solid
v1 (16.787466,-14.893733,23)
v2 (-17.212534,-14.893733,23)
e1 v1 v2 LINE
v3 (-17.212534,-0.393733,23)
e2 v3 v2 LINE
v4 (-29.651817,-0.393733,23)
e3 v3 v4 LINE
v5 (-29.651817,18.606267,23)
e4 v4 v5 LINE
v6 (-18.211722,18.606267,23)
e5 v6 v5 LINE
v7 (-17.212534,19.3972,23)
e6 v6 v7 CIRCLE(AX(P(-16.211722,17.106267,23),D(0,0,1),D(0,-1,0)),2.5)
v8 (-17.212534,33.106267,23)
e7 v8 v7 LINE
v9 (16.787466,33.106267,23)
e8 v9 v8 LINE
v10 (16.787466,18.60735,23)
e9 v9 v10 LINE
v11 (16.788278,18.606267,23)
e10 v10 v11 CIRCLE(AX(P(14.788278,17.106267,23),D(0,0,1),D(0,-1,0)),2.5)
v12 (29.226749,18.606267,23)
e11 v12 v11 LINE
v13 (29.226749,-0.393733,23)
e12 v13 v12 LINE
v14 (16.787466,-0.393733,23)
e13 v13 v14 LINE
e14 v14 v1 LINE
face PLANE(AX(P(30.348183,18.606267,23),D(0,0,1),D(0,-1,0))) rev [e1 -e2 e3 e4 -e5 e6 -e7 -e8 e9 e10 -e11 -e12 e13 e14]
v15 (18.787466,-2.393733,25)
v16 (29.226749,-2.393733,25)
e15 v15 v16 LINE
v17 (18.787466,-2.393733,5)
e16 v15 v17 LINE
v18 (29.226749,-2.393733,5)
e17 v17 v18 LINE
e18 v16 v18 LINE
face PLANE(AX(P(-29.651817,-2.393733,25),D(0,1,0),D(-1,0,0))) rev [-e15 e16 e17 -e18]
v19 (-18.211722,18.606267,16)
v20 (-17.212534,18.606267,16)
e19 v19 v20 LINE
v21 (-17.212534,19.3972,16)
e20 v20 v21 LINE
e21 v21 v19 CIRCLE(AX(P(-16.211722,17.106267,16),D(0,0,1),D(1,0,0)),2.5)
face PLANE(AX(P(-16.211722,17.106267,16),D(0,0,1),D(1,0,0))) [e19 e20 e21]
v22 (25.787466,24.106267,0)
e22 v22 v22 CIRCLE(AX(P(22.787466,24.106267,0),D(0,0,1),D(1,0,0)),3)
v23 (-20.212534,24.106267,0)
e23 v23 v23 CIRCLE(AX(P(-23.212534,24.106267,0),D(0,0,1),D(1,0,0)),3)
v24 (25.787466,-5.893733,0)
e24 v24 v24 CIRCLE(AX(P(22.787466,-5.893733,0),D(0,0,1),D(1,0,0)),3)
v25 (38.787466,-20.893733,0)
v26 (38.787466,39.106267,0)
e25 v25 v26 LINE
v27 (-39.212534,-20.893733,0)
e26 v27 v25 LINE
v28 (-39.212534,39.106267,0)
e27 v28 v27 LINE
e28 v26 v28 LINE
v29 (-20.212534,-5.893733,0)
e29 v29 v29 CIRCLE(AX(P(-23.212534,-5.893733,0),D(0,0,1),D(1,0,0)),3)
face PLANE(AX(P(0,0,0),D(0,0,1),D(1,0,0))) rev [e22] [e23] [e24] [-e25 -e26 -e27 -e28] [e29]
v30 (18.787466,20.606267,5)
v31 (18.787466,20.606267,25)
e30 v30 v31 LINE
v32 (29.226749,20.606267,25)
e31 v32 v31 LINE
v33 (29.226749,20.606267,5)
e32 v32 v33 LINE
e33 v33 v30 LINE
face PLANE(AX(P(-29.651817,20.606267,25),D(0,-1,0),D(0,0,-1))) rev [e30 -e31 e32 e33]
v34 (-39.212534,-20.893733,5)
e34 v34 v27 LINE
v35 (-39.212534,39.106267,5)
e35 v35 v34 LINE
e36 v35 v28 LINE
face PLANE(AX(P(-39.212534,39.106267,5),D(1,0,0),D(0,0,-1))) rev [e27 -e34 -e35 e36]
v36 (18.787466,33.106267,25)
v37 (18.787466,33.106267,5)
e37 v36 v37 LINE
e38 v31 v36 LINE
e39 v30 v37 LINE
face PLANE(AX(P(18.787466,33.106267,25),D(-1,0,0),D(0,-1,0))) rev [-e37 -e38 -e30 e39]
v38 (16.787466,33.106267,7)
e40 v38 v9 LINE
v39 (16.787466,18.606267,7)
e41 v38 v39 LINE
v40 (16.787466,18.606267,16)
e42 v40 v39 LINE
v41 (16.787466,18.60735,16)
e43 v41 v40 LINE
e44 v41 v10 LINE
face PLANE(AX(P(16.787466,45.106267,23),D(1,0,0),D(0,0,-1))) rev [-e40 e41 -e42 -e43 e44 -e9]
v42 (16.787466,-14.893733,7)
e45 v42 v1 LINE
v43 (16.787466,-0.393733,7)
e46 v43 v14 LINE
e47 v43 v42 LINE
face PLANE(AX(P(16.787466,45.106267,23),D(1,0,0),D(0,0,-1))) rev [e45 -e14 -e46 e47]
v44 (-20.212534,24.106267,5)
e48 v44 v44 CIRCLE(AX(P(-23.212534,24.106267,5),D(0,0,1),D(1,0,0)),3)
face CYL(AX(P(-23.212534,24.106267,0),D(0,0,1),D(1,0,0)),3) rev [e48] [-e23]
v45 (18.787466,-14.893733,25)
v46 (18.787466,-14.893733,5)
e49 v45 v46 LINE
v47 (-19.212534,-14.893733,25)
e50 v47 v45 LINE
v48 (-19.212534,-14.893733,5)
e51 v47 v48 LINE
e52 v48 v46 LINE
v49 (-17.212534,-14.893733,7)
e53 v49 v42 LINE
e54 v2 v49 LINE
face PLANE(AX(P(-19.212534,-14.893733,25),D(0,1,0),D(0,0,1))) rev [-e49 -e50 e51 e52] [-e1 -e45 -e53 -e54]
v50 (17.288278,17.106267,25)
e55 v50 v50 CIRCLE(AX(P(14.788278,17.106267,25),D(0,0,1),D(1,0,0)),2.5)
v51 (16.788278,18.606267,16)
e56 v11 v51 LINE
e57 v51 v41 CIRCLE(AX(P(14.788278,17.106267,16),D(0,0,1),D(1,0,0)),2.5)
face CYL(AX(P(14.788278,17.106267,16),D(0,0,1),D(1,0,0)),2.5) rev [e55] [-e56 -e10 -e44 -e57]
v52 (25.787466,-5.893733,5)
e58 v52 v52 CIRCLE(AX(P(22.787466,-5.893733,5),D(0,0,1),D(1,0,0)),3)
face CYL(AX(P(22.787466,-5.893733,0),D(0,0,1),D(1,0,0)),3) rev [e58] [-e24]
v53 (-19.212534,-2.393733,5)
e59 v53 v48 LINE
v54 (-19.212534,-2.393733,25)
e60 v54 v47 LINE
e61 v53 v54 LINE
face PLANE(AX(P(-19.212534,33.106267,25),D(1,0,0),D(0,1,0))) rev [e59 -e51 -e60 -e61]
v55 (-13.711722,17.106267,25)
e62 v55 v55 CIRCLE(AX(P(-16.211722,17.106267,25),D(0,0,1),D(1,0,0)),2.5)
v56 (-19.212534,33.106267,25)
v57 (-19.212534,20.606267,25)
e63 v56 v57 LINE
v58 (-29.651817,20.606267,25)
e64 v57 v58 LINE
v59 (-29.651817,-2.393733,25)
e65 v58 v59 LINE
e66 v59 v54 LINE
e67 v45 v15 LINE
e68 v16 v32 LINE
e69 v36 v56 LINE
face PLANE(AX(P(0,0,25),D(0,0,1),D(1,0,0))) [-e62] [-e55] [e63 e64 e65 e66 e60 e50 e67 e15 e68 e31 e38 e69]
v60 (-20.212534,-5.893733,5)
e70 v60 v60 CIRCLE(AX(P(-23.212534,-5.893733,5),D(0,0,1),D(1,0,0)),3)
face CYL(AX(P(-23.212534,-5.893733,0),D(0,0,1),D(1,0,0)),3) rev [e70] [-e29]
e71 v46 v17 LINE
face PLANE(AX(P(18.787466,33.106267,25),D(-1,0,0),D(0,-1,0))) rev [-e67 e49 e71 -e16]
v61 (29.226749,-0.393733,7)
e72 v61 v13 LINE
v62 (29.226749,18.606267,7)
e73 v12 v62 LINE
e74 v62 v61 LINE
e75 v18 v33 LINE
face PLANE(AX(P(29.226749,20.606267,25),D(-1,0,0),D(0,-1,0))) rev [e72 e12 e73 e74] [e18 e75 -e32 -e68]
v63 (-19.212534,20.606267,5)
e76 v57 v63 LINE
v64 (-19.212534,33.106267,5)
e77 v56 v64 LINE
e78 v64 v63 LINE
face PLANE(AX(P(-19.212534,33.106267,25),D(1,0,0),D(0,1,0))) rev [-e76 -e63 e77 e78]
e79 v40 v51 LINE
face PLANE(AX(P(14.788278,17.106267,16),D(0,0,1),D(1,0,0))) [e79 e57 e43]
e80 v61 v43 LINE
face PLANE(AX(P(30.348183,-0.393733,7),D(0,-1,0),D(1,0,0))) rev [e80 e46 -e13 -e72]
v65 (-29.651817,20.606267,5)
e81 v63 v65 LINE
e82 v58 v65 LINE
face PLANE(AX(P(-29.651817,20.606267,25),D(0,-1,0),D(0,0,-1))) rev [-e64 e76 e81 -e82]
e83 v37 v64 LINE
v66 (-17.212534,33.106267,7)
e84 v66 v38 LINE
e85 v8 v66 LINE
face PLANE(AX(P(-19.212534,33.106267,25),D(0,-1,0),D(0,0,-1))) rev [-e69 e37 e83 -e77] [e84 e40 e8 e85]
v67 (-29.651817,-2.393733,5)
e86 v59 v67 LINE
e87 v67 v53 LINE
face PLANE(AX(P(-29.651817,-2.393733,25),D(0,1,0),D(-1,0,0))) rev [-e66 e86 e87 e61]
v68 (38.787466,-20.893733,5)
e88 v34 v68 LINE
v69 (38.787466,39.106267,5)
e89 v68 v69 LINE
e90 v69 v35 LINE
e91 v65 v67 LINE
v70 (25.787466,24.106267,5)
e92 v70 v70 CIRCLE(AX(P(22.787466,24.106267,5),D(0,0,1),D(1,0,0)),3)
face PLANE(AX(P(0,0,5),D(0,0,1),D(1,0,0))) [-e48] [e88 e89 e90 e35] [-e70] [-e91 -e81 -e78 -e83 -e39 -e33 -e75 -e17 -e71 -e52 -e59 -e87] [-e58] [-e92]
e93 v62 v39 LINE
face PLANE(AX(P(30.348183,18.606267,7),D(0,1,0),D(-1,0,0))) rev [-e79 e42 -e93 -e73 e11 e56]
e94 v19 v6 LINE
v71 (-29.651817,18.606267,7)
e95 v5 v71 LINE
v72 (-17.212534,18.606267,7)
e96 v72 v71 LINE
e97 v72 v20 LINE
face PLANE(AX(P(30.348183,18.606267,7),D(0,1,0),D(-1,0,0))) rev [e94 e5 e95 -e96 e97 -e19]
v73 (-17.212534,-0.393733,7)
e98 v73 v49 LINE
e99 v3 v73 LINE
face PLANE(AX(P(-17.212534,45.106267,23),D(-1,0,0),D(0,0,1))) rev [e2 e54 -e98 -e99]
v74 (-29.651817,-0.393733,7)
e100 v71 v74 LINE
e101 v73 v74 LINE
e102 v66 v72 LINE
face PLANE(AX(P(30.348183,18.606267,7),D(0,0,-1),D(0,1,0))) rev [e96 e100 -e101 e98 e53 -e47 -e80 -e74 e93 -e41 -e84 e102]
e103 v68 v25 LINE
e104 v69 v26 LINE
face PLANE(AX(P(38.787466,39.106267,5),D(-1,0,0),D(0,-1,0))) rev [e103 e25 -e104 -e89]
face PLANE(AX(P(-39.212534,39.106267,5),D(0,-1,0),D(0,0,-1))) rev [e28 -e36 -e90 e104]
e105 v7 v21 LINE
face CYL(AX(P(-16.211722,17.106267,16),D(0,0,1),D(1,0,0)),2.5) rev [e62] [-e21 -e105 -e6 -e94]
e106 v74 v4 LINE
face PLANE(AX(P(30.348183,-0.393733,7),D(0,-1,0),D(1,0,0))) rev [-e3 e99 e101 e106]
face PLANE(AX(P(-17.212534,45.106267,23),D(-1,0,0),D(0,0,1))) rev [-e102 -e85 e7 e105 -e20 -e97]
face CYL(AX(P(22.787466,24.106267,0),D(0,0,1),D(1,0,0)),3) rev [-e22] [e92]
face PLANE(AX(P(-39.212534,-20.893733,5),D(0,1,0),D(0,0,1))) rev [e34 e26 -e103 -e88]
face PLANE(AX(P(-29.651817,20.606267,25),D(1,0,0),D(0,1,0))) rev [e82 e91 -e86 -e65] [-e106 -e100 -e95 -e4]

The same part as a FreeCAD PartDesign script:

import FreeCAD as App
import Part
import Sketcher
from FreeCAD import Vector
Q = App.Units.Quantity

doc = App.newDocument("Part")
params = doc.addObject("Spreadsheet::Sheet", "Params")
for row, (alias, value) in enumerate([
    ("sketch1_width", "78 mm"),
    ("sketch1_height", "60 mm"),
    ("pad1_length", "5 mm"),
    ("sketch2_diameter", "6 mm"),
    ("sketch3_width", "38 mm"),
    ("sketch3_height", "48 mm"),
    ("pad2_length", "20 mm"),
    ("sketch4_height", "23 mm"),
    ("pad3_length", "20 mm"),
    ("sketch5_width", "19 mm"),
    ("sketch5_height", "16 mm"),
    ("pocket2_length", "60 mm"),
    ("sketch6_width", "34 mm"),
    ("sketch6_height", "16 mm"),
    ("pocket3_length", "60 mm"),
    ("sketch7_diameter", "5 mm"),
    ("pocket4_length", "9 mm"),
], start=1):
    params.set(f"A{row}", alias)
    params.set(f"B{row}", "=" + value)
    params.setAlias(f"B{row}", alias)

body = doc.addObject("PartDesign::Body", "Body")

# Sketch on XY plane
sketch1 = body.newObject("Sketcher::SketchObject", "Sketch")
sketch1.AttachmentSupport = (doc.getObject("XY_Plane"), [""])
sketch1.MapMode = "FlatFace"
sketch1.addGeometry(Part.LineSegment(Vector(-39, 39, 0), Vector(-39, -21, 0)), False)
sketch1.addGeometry(Part.LineSegment(Vector(-39, -21, 0), Vector(39, -21, 0)), False)
sketch1.addGeometry(Part.LineSegment(Vector(39, -21, 0), Vector(39, 39, 0)), False)
sketch1.addGeometry(Part.LineSegment(Vector(39, 39, 0), Vector(-39, 39, 0)), False)
sketch1.addConstraint(Sketcher.Constraint("Coincident", 0, 2, 1, 1))
sketch1.addConstraint(Sketcher.Constraint("Coincident", 1, 2, 2, 1))
sketch1.addConstraint(Sketcher.Constraint("Coincident", 2, 2, 3, 1))
sketch1.addConstraint(Sketcher.Constraint("Coincident", 3, 2, 0, 1))
sketch1.addConstraint(Sketcher.Constraint("Vertical", 0))
sketch1.addConstraint(Sketcher.Constraint("Horizontal", 1))
sketch1.addConstraint(Sketcher.Constraint("Vertical", 2))
sketch1.addConstraint(Sketcher.Constraint("Horizontal", 3))
sketch1.addConstraint(Sketcher.Constraint("DistanceX", 1, 1, 1, 2, Q("78 mm")))
sketch1.addConstraint(Sketcher.Constraint("DistanceY", 0, 2, 0, 1, Q("60 mm")))
sketch1.addConstraint(Sketcher.Constraint("DistanceX", 0, 2, -1, 1, Q("39.212534 mm")))
sketch1.addConstraint(Sketcher.Constraint("DistanceY", 0, 2, -1, 1, Q("20.893733 mm")))
sketch1.setExpression("Constraints[8]", "Params.sketch1_width")
sketch1.setExpression("Constraints[9]", "Params.sketch1_height")
pad1 = body.newObject("PartDesign::Pad", "Pad")
pad1.Profile = sketch1
pad1.setExpression("Length", "Params.pad1_length")

# Sketch on XY plane
sketch2 = body.newObject("Sketcher::SketchObject", "Sketch001")
sketch2.AttachmentSupport = (doc.getObject("XY_Plane"), [""])
sketch2.MapMode = "FlatFace"
sketch2.AttachmentOffset = App.Placement(Vector(0, 0, 5), App.Rotation())
sketch2.addGeometry(Part.Circle(Vector(-23.2, 24.1, 0), Vector(0, 0, 1), 3), False)
sketch2.addGeometry(Part.Circle(Vector(22.8, 24.1, 0), Vector(0, 0, 1), 3), False)
sketch2.addGeometry(Part.Circle(Vector(22.8, -5.9, 0), Vector(0, 0, 1), 3), False)
sketch2.addGeometry(Part.Circle(Vector(-23.2, -5.9, 0), Vector(0, 0, 1), 3), False)
sketch2.addConstraint(Sketcher.Constraint("Equal", 0, 1))
sketch2.addConstraint(Sketcher.Constraint("Equal", 1, 2))
sketch2.addConstraint(Sketcher.Constraint("Equal", 2, 3))
sketch2.addConstraint(Sketcher.Constraint("Horizontal", 0, 3, 1, 3))
sketch2.addConstraint(Sketcher.Constraint("Horizontal", 2, 3, 3, 3))
sketch2.addConstraint(Sketcher.Constraint("Vertical", 1, 3, 2, 3))
sketch2.addConstraint(Sketcher.Constraint("Vertical", 0, 3, 3, 3))
sketch2.addConstraint(Sketcher.Constraint("Diameter", 0, Q("6 mm")))
sketch2.addConstraint(Sketcher.Constraint("DistanceX", 0, 3, 1, 3, Q("46 mm")))
sketch2.addConstraint(Sketcher.Constraint("DistanceY", 2, 3, 1, 3, Q("30 mm")))
sketch2.addConstraint(Sketcher.Constraint("DistanceX", 0, 3, -1, 1, Q("23.212534 mm")))
sketch2.addConstraint(Sketcher.Constraint("DistanceY", -1, 1, 0, 3, Q("24.106267 mm")))
sketch2.setExpression("Constraints[7]", "Params.sketch2_diameter")
pocket1 = body.newObject("PartDesign::Pocket", "Pocket")
pocket1.Profile = sketch2
pocket1.Type = "ThroughAll"

# Sketch on XY plane
sketch3 = body.newObject("Sketcher::SketchObject", "Sketch002")
sketch3.AttachmentSupport = (doc.getObject("XY_Plane"), [""])
sketch3.MapMode = "FlatFace"
sketch3.AttachmentOffset = App.Placement(Vector(0, 0, 5), App.Rotation())
sketch3.addGeometry(Part.LineSegment(Vector(-19, 33, 0), Vector(-19, -15, 0)), False)
sketch3.addGeometry(Part.LineSegment(Vector(-19, -15, 0), Vector(19, -15, 0)), False)
sketch3.addGeometry(Part.LineSegment(Vector(19, -15, 0), Vector(19, 33, 0)), False)
sketch3.addGeometry(Part.LineSegment(Vector(19, 33, 0), Vector(-19, 33, 0)), False)
sketch3.addConstraint(Sketcher.Constraint("Coincident", 0, 2, 1, 1))
sketch3.addConstraint(Sketcher.Constraint("Coincident", 1, 2, 2, 1))
sketch3.addConstraint(Sketcher.Constraint("Coincident", 2, 2, 3, 1))
sketch3.addConstraint(Sketcher.Constraint("Coincident", 3, 2, 0, 1))
sketch3.addConstraint(Sketcher.Constraint("Vertical", 0))
sketch3.addConstraint(Sketcher.Constraint("Horizontal", 1))
sketch3.addConstraint(Sketcher.Constraint("Vertical", 2))
sketch3.addConstraint(Sketcher.Constraint("Horizontal", 3))
sketch3.addConstraint(Sketcher.Constraint("DistanceX", 1, 1, 1, 2, Q("38 mm")))
sketch3.addConstraint(Sketcher.Constraint("DistanceY", 0, 2, 0, 1, Q("48 mm")))
sketch3.addConstraint(Sketcher.Constraint("DistanceX", 0, 2, -1, 1, Q("19.212534 mm")))
sketch3.addConstraint(Sketcher.Constraint("DistanceY", 0, 2, -1, 1, Q("14.893733 mm")))
sketch3.setExpression("Constraints[8]", "Params.sketch3_width")
sketch3.setExpression("Constraints[9]", "Params.sketch3_height")
pad2 = body.newObject("PartDesign::Pad", "Pad001")
pad2.Profile = sketch3
pad2.setExpression("Length", "Params.pad2_length")

# Sketch on XY plane
sketch4 = body.newObject("Sketcher::SketchObject", "Sketch003")
sketch4.AttachmentSupport = (doc.getObject("XY_Plane"), [""])
sketch4.MapMode = "FlatFace"
sketch4.AttachmentOffset = App.Placement(Vector(0, 0, 5), App.Rotation())
sketch4.addGeometry(Part.LineSegment(Vector(-30, 21, 0), Vector(-30, -2, 0)), False)
sketch4.addGeometry(Part.LineSegment(Vector(-30, -2, 0), Vector(29, -2, 0)), False)
sketch4.addGeometry(Part.LineSegment(Vector(29, -2, 0), Vector(29, 21, 0)), False)
sketch4.addGeometry(Part.LineSegment(Vector(29, 21, 0), Vector(-30, 21, 0)), False)
sketch4.addConstraint(Sketcher.Constraint("Coincident", 0, 2, 1, 1))
sketch4.addConstraint(Sketcher.Constraint("Coincident", 1, 2, 2, 1))
sketch4.addConstraint(Sketcher.Constraint("Coincident", 2, 2, 3, 1))
sketch4.addConstraint(Sketcher.Constraint("Coincident", 3, 2, 0, 1))
sketch4.addConstraint(Sketcher.Constraint("Vertical", 0))
sketch4.addConstraint(Sketcher.Constraint("Horizontal", 1))
sketch4.addConstraint(Sketcher.Constraint("Vertical", 2))
sketch4.addConstraint(Sketcher.Constraint("Horizontal", 3))
sketch4.addConstraint(Sketcher.Constraint("DistanceY", 0, 2, 0, 1, Q("23 mm")))
sketch4.addConstraint(Sketcher.Constraint("DistanceX", 1, 1, 1, 2, Q("58.878566 mm")))
sketch4.addConstraint(Sketcher.Constraint("DistanceX", -1, 1, 1, 2, Q("29.226749 mm")))
sketch4.addConstraint(Sketcher.Constraint("DistanceY", 0, 2, -1, 1, Q("2.393733 mm")))
sketch4.setExpression("Constraints[8]", "Params.sketch4_height")
pad3 = body.newObject("PartDesign::Pad", "Pad002")
pad3.Profile = sketch4
pad3.setExpression("Length", "Params.pad3_length")

# Sketch on YZ plane
sketch5 = body.newObject("Sketcher::SketchObject", "Sketch004")
sketch5.AttachmentSupport = (doc.getObject("YZ_Plane"), [""])
sketch5.MapMode = "FlatFace"
sketch5.AttachmentOffset = App.Placement(Vector(0, 0, -29.651817), App.Rotation())
sketch5.addGeometry(Part.LineSegment(Vector(19, 7, 0), Vector(0, 7, 0)), False)
sketch5.addGeometry(Part.LineSegment(Vector(0, 7, 0), Vector(0, 23, 0)), False)
sketch5.addGeometry(Part.LineSegment(Vector(0, 23, 0), Vector(19, 23, 0)), False)
sketch5.addGeometry(Part.LineSegment(Vector(19, 23, 0), Vector(19, 7, 0)), False)
sketch5.addConstraint(Sketcher.Constraint("Coincident", 0, 2, 1, 1))
sketch5.addConstraint(Sketcher.Constraint("Coincident", 1, 2, 2, 1))
sketch5.addConstraint(Sketcher.Constraint("Coincident", 2, 2, 3, 1))
sketch5.addConstraint(Sketcher.Constraint("Coincident", 3, 2, 0, 1))
sketch5.addConstraint(Sketcher.Constraint("Horizontal", 0))
sketch5.addConstraint(Sketcher.Constraint("Vertical", 1))
sketch5.addConstraint(Sketcher.Constraint("Horizontal", 2))
sketch5.addConstraint(Sketcher.Constraint("Vertical", 3))
sketch5.addConstraint(Sketcher.Constraint("DistanceX", 0, 2, 0, 1, Q("19 mm")))
sketch5.addConstraint(Sketcher.Constraint("DistanceY", 1, 1, 1, 2, Q("16 mm")))
sketch5.addConstraint(Sketcher.Constraint("DistanceY", -1, 1, 0, 2, Q("7 mm")))
sketch5.addConstraint(Sketcher.Constraint("DistanceX", 0, 2, -1, 1, Q("0.393733 mm")))
sketch5.setExpression("Constraints[8]", "Params.sketch5_width")
sketch5.setExpression("Constraints[9]", "Params.sketch5_height")
pocket2 = body.newObject("PartDesign::Pocket", "Pocket001")
pocket2.Profile = sketch5
pocket2.setExpression("Length", "Params.pocket2_length")
pocket2.Reversed = True

# Sketch on XZ plane
sketch6 = body.newObject("Sketcher::SketchObject", "Sketch005")
sketch6.AttachmentSupport = (doc.getObject("XZ_Plane"), [""])
sketch6.MapMode = "FlatFace"
sketch6.AttachmentOffset = App.Placement(Vector(0, 0, 14.893733), App.Rotation())
sketch6.addGeometry(Part.LineSegment(Vector(-17, 23, 0), Vector(-17, 7, 0)), False)
sketch6.addGeometry(Part.LineSegment(Vector(-17, 7, 0), Vector(17, 7, 0)), False)
sketch6.addGeometry(Part.LineSegment(Vector(17, 7, 0), Vector(17, 23, 0)), False)
sketch6.addGeometry(Part.LineSegment(Vector(17, 23, 0), Vector(-17, 23, 0)), False)
sketch6.addConstraint(Sketcher.Constraint("Coincident", 0, 2, 1, 1))
sketch6.addConstraint(Sketcher.Constraint("Coincident", 1, 2, 2, 1))
sketch6.addConstraint(Sketcher.Constraint("Coincident", 2, 2, 3, 1))
sketch6.addConstraint(Sketcher.Constraint("Coincident", 3, 2, 0, 1))
sketch6.addConstraint(Sketcher.Constraint("Vertical", 0))
sketch6.addConstraint(Sketcher.Constraint("Horizontal", 1))
sketch6.addConstraint(Sketcher.Constraint("Vertical", 2))
sketch6.addConstraint(Sketcher.Constraint("Horizontal", 3))
sketch6.addConstraint(Sketcher.Constraint("DistanceX", 1, 1, 1, 2, Q("34 mm")))
sketch6.addConstraint(Sketcher.Constraint("DistanceY", 0, 2, 0, 1, Q("16 mm")))
sketch6.addConstraint(Sketcher.Constraint("DistanceY", -1, 1, 0, 2, Q("7 mm")))
sketch6.addConstraint(Sketcher.Constraint("DistanceX", 0, 2, -1, 1, Q("17.212534 mm")))
sketch6.setExpression("Constraints[8]", "Params.sketch6_width")
sketch6.setExpression("Constraints[9]", "Params.sketch6_height")
pocket3 = body.newObject("PartDesign::Pocket", "Pocket002")
pocket3.Profile = sketch6
pocket3.setExpression("Length", "Params.pocket3_length")

# Sketch on XY plane
sketch7 = body.newObject("Sketcher::SketchObject", "Sketch006")
sketch7.AttachmentSupport = (doc.getObject("XY_Plane"), [""])
sketch7.MapMode = "FlatFace"
sketch7.AttachmentOffset = App.Placement(Vector(0, 0, 25), App.Rotation())
sketch7.addGeometry(Part.Circle(Vector(-16.2, 17.1, 0), Vector(0, 0, 1), 2.5), False)
sketch7.addGeometry(Part.Circle(Vector(14.8, 17.1, 0), Vector(0, 0, 1), 2.5), False)
sketch7.addConstraint(Sketcher.Constraint("Equal", 0, 1))
sketch7.addConstraint(Sketcher.Constraint("Horizontal", 0, 3, 1, 3))
sketch7.addConstraint(Sketcher.Constraint("Diameter", 0, Q("5 mm")))
sketch7.addConstraint(Sketcher.Constraint("DistanceX", 0, 3, 1, 3, Q("31 mm")))
sketch7.addConstraint(Sketcher.Constraint("DistanceX", 0, 3, -1, 1, Q("16.211722 mm")))
sketch7.addConstraint(Sketcher.Constraint("DistanceY", -1, 1, 0, 3, Q("17.106267 mm")))
sketch7.setExpression("Constraints[2]", "Params.sketch7_diameter")
pocket4 = body.newObject("PartDesign::Pocket", "Pocket003")
pocket4.Profile = sketch7
pocket4.setExpression("Length", "Params.pocket4_length")

doc.recompute()
